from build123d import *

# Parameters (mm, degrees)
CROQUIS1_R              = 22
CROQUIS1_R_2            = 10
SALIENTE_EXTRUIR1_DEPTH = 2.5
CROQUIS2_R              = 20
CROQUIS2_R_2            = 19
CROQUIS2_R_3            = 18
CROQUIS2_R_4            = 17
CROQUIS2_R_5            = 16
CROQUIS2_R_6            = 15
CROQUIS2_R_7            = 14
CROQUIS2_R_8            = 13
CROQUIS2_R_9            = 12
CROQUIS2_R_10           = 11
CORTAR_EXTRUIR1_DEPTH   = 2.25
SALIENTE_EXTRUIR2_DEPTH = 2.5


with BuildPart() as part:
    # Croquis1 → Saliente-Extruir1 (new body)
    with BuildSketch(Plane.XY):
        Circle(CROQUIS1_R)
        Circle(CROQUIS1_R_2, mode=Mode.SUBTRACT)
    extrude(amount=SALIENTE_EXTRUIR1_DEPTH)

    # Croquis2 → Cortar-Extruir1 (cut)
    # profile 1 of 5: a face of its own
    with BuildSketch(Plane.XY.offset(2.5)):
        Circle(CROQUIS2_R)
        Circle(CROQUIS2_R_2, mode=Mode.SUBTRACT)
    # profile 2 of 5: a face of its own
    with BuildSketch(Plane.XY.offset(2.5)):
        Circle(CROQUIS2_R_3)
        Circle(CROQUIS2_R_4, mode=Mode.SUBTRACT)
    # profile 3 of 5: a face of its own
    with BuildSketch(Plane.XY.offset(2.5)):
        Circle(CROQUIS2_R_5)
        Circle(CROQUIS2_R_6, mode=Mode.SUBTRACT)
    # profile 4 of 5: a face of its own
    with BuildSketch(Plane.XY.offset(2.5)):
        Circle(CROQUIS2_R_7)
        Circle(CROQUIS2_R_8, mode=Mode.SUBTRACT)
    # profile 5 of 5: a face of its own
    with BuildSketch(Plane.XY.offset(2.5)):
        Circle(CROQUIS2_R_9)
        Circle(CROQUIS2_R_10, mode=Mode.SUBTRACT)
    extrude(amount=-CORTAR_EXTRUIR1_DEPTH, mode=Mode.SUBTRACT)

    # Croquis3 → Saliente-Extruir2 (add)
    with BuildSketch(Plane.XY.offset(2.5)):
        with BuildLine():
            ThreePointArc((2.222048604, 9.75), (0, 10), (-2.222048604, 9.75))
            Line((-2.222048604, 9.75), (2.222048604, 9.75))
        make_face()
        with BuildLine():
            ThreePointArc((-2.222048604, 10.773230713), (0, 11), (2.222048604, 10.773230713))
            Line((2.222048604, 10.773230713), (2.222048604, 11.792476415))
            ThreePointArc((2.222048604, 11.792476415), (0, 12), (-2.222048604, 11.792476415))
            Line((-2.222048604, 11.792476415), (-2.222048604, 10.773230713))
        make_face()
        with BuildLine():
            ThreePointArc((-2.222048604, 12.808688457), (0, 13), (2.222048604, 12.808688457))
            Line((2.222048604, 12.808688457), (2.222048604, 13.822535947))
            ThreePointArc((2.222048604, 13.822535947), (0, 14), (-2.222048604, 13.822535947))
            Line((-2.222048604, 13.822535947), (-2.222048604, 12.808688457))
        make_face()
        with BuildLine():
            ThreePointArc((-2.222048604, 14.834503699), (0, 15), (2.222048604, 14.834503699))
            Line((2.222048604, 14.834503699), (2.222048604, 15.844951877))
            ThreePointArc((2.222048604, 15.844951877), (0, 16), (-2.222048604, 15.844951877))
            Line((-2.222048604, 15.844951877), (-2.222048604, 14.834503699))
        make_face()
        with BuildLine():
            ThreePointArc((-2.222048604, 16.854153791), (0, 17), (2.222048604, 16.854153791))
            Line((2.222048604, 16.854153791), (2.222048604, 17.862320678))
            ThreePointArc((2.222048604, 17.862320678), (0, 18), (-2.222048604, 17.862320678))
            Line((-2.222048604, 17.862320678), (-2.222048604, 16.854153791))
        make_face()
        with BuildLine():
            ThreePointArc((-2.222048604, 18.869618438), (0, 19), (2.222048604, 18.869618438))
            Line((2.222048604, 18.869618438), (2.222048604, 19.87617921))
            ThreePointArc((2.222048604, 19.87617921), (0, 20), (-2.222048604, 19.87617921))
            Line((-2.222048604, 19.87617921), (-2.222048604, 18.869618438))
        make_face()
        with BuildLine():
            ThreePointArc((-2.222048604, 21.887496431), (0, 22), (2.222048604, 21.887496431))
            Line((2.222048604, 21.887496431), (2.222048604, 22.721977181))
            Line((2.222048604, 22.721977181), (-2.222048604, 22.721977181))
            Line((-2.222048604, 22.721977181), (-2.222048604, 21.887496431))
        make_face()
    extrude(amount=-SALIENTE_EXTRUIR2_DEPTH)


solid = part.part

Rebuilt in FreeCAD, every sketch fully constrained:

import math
import FreeCAD as App
import Part
import Sketcher

doc = App.newDocument("Part")
params = doc.addObject("Spreadsheet::Sheet", "Params")
for row, (alias, value) in enumerate([
    ("sketch1_diameter", "44 mm"),
    ("sketch1_diameter2", "20 mm"),
    ("pad1_length", "2.5 mm"),
    ("sketch2_diameter", "40 mm"),
    ("sketch2_diameter2", "38 mm"),
    ("sketch2_diameter3", "36 mm"),
    ("sketch2_diameter4", "34 mm"),
    ("sketch2_diameter5", "32 mm"),
    ("pocket1_length", "2.25 mm"),
    ("sketch3_radius", "10 mm"),
    ("sketch3_radius2", "11 mm"),
    ("sketch3_radius3", "12 mm"),
    ("sketch3_radius4", "13 mm"),
    ("sketch3_radius5", "14 mm"),
    ("pad2_length", "2.5 mm"),
], start=1):
    params.set(f"A{row}", alias)
    params.set(f"B{row}", "=" + value)
    params.setAlias(f"B{row}", alias)

body = doc.addObject("PartDesign::Body", "Body")

# Sketch on XY plane
sketch1 = body.newObject("Sketcher::SketchObject", "Sketch")
sketch1.AttachmentSupport = (doc.getObject("XY_Plane"), [""])
sketch1.MapMode = "FlatFace"
sketch1.addGeometry(Part.Circle(App.Vector(0, 0, 0), App.Vector(0, 0, 1), 22), False)
sketch1.addGeometry(Part.Circle(App.Vector(0, 0, 0), App.Vector(0, 0, 1), 10), False)
sketch1.addConstraint(Sketcher.Constraint("Coincident", 0, 3, -1, 1))
sketch1.addConstraint(Sketcher.Constraint("Coincident", 1, 3, -1, 1))
sketch1.addConstraint(Sketcher.Constraint("Diameter", 0, 44.0))
sketch1.addConstraint(Sketcher.Constraint("Diameter", 1, 20.0))
sketch1.setExpression("Constraints[2]", "Params.sketch1_diameter")
sketch1.setExpression("Constraints[3]", "Params.sketch1_diameter2")
pad1 = body.newObject("PartDesign::Pad", "Pad")
pad1.Profile = sketch1
pad1.setExpression("Length", "Params.pad1_length")

# Sketch on XY plane
sketch2 = body.newObject("Sketcher::SketchObject", "Sketch001")
sketch2.AttachmentSupport = (doc.getObject("XY_Plane"), [""])
sketch2.MapMode = "FlatFace"
sketch2.AttachmentOffset = App.Placement(App.Vector(0, 0, 2.5), App.Rotation())
sketch2.addGeometry(Part.Circle(App.Vector(0, 0, 0), App.Vector(0, 0, 1), 20), False)
sketch2.addGeometry(Part.Circle(App.Vector(0, 0, 0), App.Vector(0, 0, 1), 19), False)
sketch2.addGeometry(Part.Circle(App.Vector(0, 0, 0), App.Vector(0, 0, 1), 18), False)
sketch2.addGeometry(Part.Circle(App.Vector(0, 0, 0), App.Vector(0, 0, 1), 17), False)
sketch2.addGeometry(Part.Circle(App.Vector(0, 0, 0), App.Vector(0, 0, 1), 16), False)
sketch2.addGeometry(Part.Circle(App.Vector(0, 0, 0), App.Vector(0, 0, 1), 15), False)
sketch2.addGeometry(Part.Circle(App.Vector(0, 0, 0), App.Vector(0, 0, 1), 14), False)
sketch2.addGeometry(Part.Circle(App.Vector(0, 0, 0), App.Vector(0, 0, 1), 13), False)
sketch2.addGeometry(Part.Circle(App.Vector(0, 0, 0), App.Vector(0, 0, 1), 12), False)
sketch2.addGeometry(Part.Circle(App.Vector(0, 0, 0), App.Vector(0, 0, 1), 11), False)
sketch2.addConstraint(Sketcher.Constraint("Coincident", 0, 3, -1, 1))
sketch2.addConstraint(Sketcher.Constraint("Coincident", 1, 3, -1, 1))
sketch2.addConstraint(Sketcher.Constraint("Coincident", 2, 3, -1, 1))
sketch2.addConstraint(Sketcher.Constraint("Coincident", 3, 3, -1, 1))
sketch2.addConstraint(Sketcher.Constraint("Coincident", 4, 3, -1, 1))
sketch2.addConstraint(Sketcher.Constraint("Coincident", 5, 3, -1, 1))
sketch2.addConstraint(Sketcher.Constraint("Coincident", 6, 3, -1, 1))
sketch2.addConstraint(Sketcher.Constraint("Coincident", 7, 3, -1, 1))
sketch2.addConstraint(Sketcher.Constraint("Coincident", 8, 3, -1, 1))
sketch2.addConstraint(Sketcher.Constraint("Coincident", 9, 3, -1, 1))
sketch2.addConstraint(Sketcher.Constraint("Diameter", 0, 40.0))
sketch2.addConstraint(Sketcher.Constraint("Diameter", 1, 38.0))
sketch2.addConstraint(Sketcher.Constraint("Diameter", 2, 36.0))
sketch2.addConstraint(Sketcher.Constraint("Diameter", 3, 34.0))
sketch2.addConstraint(Sketcher.Constraint("Diameter", 4, 32.0))
sketch2.addConstraint(Sketcher.Constraint("Diameter", 5, 30.0))
sketch2.addConstraint(Sketcher.Constraint("Diameter", 6, 28.0))
sketch2.addConstraint(Sketcher.Constraint("Diameter", 7, 26.0))
sketch2.addConstraint(Sketcher.Constraint("Diameter", 8, 24.0))
sketch2.addConstraint(Sketcher.Constraint("Diameter", 9, 22.0))
sketch2.setExpression("Constraints[10]", "Params.sketch2_diameter")
sketch2.setExpression("Constraints[11]", "Params.sketch2_diameter2")
sketch2.setExpression("Constraints[12]", "Params.sketch2_diameter3")
sketch2.setExpression("Constraints[13]", "Params.sketch2_diameter4")
sketch2.setExpression("Constraints[14]", "Params.sketch2_diameter5")
pocket1 = body.newObject("PartDesign::Pocket", "Pocket")
pocket1.Profile = sketch2
pocket1.setExpression("Length", "Params.pocket1_length")

# Sketch on XY plane
sketch3 = body.newObject("Sketcher::SketchObject", "Sketch002")
sketch3.AttachmentSupport = (doc.getObject("XY_Plane"), [""])
sketch3.MapMode = "FlatFace"
sketch3.AttachmentOffset = App.Placement(App.Vector(0, 0, 2.5), App.Rotation())
sketch3.addGeometry(Part.ArcOfCircle(Part.Circle(App.Vector(0, 0, 0), App.Vector(0, 0, 1), 10), math.radians(77.161432), math.radians(102.838568)), False)
sketch3.addGeometry(Part.LineSegment(App.Vector(-2.222049, 9.75, 0), App.Vector(2.222049, 9.75, 0)), False)
sketch3.addGeometry(Part.ArcOfCircle(Part.Circle(App.Vector(0, 0, 0), App.Vector(0, 0, 1), 11), math.radians(78.345803), math.radians(101.654197)), False)
sketch3.addGeometry(Part.LineSegment(App.Vector(2.222049, 10.773231, 0), App.Vector(2.222049, 11.792476, 0)), False)
sketch3.addGeometry(Part.ArcOfCircle(Part.Circle(App.Vector(0, 0, 0), App.Vector(0, 0, 1), 12), math.radians(79.328914), math.radians(100.671086)), False)
sketch3.addGeometry(Part.LineSegment(App.Vector(-2.222049, 11.792476, 0), App.Vector(-2.222049, 10.773231, 0)), False)
sketch3.addGeometry(Part.ArcOfCircle(Part.Circle(App.Vector(0, 0, 0), App.Vector(0, 0, 1), 13), math.radians(80.15829), math.radians(99.84171)), False)
sketch3.addGeometry(Part.LineSegment(App.Vector(2.222049, 12.808688, 0), App.Vector(2.222049, 13.822536, 0)), False)
sketch3.addGeometry(Part.ArcOfCircle(Part.Circle(App.Vector(0, 0, 0), App.Vector(0, 0, 1), 14), math.radians(80.867522), math.radians(99.132478)), False)
sketch3.addGeometry(Part.LineSegment(App.Vector(-2.222049, 13.822536, 0), App.Vector(-2.222049, 12.808688, 0)), False)
sketch3.addGeometry(Part.ArcOfCircle(Part.Circle(App.Vector(0, 0, 0), App.Vector(0, 0, 1), 15), math.radians(81.481046), math.radians(98.518954)), False)
sketch3.addGeometry(Part.LineSegment(App.Vector(2.222049, 14.834504, 0), App.Vector(2.222049, 15.844952, 0)), False)
sketch3.addGeometry(Part.ArcOfCircle(Part.Circle(App.Vector(0, 0, 0), App.Vector(0, 0, 1), 16), math.radians(82.017072), math.radians(97.982928)), False)
sketch3.addGeometry(Part.LineSegment(App.Vector(-2.222049, 15.844952, 0), App.Vector(-2.222049, 14.834504, 0)), False)
sketch3.addGeometry(Part.ArcOfCircle(Part.Circle(App.Vector(0, 0, 0), App.Vector(0, 0, 1), 17), math.radians(82.48945), math.radians(97.51055)), False)
sketch3.addGeometry(Part.LineSegment(App.Vector(2.222049, 16.854154, 0), App.Vector(2.222049, 17.862321, 0)), False)
sketch3.addGeometry(Part.ArcOfCircle(Part.Circle(App.Vector(0, 0, 0), App.Vector(0, 0, 1), 18), math.radians(82.908911), math.radians(97.091089)), False)
sketch3.addGeometry(Part.LineSegment(App.Vector(-2.222049, 17.862321, 0), App.Vector(-2.222049, 16.854154, 0)), False)
sketch3.addGeometry(Part.ArcOfCircle(Part.Circle(App.Vector(0, 0, 0), App.Vector(0, 0, 1), 19), math.radians(83.283893), math.radians(96.716107)), False)
sketch3.addGeometry(Part.LineSegment(App.Vector(2.222049, 18.869618, 0), App.Vector(2.222049, 19.876179, 0)), False)
sketch3.addGeometry(Part.ArcOfCircle(Part.Circle(App.Vector(0, 0, 0), App.Vector(0, 0, 1), 20), math.radians(83.62113), math.radians(96.37887)), False)
sketch3.addGeometry(Part.LineSegment(App.Vector(-2.222049, 19.876179, 0), App.Vector(-2.222049, 18.869618, 0)), False)
sketch3.addGeometry(Part.ArcOfCircle(Part.Circle(App.Vector(0, 0, 0), App.Vector(0, 0, 1), 22), math.radians(84.203115), math.radians(95.796885)), False)
sketch3.addGeometry(Part.LineSegment(App.Vector(2.222049, 21.887496, 0), App.Vector(2.222049, 22.721977, 0)), False)
sketch3.addGeometry(Part.LineSegment(App.Vector(2.222049, 22.721977, 0), App.Vector(-2.222049, 22.721977, 0)), False)
sketch3.addGeometry(Part.LineSegment(App.Vector(-2.222049, 22.721977, 0), App.Vector(-2.222049, 21.887496, 0)), False)
sketch3.addConstraint(Sketcher.Constraint("Coincident", 0, 1, 1, 2))
sketch3.addConstraint(Sketcher.Constraint("Coincident", 1, 1, 0, 2))
sketch3.addConstraint(Sketcher.Constraint("Coincident", 2, 1, 3, 1))
sketch3.addConstraint(Sketcher.Constraint("Coincident", 3, 2, 4, 1))
sketch3.addConstraint(Sketcher.Constraint("Coincident", 4, 2, 5, 1))
sketch3.addConstraint(Sketcher.Constraint("Coincident", 5, 2, 2, 2))
sketch3.addConstraint(Sketcher.Constraint("Coincident", 6, 1, 7, 1))
sketch3.addConstraint(Sketcher.Constraint("Coincident", 7, 2, 8, 1))
sketch3.addConstraint(Sketcher.Constraint("Coincident", 8, 2, 9, 1))
sketch3.addConstraint(Sketcher.Constraint("Coincident", 9, 2, 6, 2))
sketch3.addConstraint(Sketcher.Constraint("Coincident", 10, 1, 11, 1))
sketch3.addConstraint(Sketcher.Constraint("Coincident", 11, 2, 12, 1))
sketch3.addConstraint(Sketcher.Constraint("Coincident", 12, 2, 13, 1))
sketch3.addConstraint(Sketcher.Constraint("Coincident", 13, 2, 10, 2))
sketch3.addConstraint(Sketcher.Constraint("Coincident", 14, 1, 15, 1))
sketch3.addConstraint(Sketcher.Constraint("Coincident", 15, 2, 16, 1))
sketch3.addConstraint(Sketcher.Constraint("Coincident", 16, 2, 17, 1))
sketch3.addConstraint(Sketcher.Constraint("Coincident", 17, 2, 14, 2))
sketch3.addConstraint(Sketcher.Constraint("Coincident", 18, 1, 19, 1))
sketch3.addConstraint(Sketcher.Constraint("Coincident", 19, 2, 20, 1))
sketch3.addConstraint(Sketcher.Constraint("Coincident", 20, 2, 21, 1))
sketch3.addConstraint(Sketcher.Constraint("Coincident", 21, 2, 18, 2))
sketch3.addConstraint(Sketcher.Constraint("Coincident", 22, 1, 23, 1))
sketch3.addConstraint(Sketcher.Constraint("Coincident", 23, 2, 24, 1))
sketch3.addConstraint(Sketcher.Constraint("Coincident", 24, 2, 25, 1))
sketch3.addConstraint(Sketcher.Constraint("Coincident", 25, 2, 22, 2))
sketch3.addConstraint(Sketcher.Constraint("Horizontal", 1))
sketch3.addConstraint(Sketcher.Constraint("Vertical", 3))
sketch3.addConstraint(Sketcher.Constraint("Vertical", 5))
sketch3.addConstraint(Sketcher.Constraint("Vertical", 7))
sketch3.addConstraint(Sketcher.Constraint("Vertical", 9))
sketch3.addConstraint(Sketcher.Constraint("Vertical", 11))
sketch3.addConstraint(Sketcher.Constraint("Vertical", 13))
sketch3.addConstraint(Sketcher.Constraint("Vertical", 15))
sketch3.addConstraint(Sketcher.Constraint("Vertical", 17))
sketch3.addConstraint(Sketcher.Constraint("Vertical", 19))
sketch3.addConstraint(Sketcher.Constraint("Vertical", 21))
sketch3.addConstraint(Sketcher.Constraint("Vertical", 23))
sketch3.addConstraint(Sketcher.Constraint("Horizontal", 24))
sketch3.addConstraint(Sketcher.Constraint("Vertical", 25))
sketch3.addConstraint(Sketcher.Constraint("Coincident", 0, 3, -1, 1))
sketch3.addConstraint(Sketcher.Constraint("Coincident", 2, 3, -1, 1))
sketch3.addConstraint(Sketcher.Constraint("Coincident", 4, 3, -1, 1))
sketch3.addConstraint(Sketcher.Constraint("Coincident", 6, 3, -1, 1))
sketch3.addConstraint(Sketcher.Constraint("Coincident", 8, 3, -1, 1))
sketch3.addConstraint(Sketcher.Constraint("Coincident", 10, 3, -1, 1))
sketch3.addConstraint(Sketcher.Constraint("Coincident", 12, 3, -1, 1))
sketch3.addConstraint(Sketcher.Constraint("Coincident", 14, 3, -1, 1))
sketch3.addConstraint(Sketcher.Constraint("Coincident", 16, 3, -1, 1))
sketch3.addConstraint(Sketcher.Constraint("Coincident", 18, 3, -1, 1))
sketch3.addConstraint(Sketcher.Constraint("Coincident", 20, 3, -1, 1))
sketch3.addConstraint(Sketcher.Constraint("Coincident", 22, 3, -1, 1))
sketch3.addConstraint(Sketcher.Constraint("Horizontal", 3, 2, 4, 2))
sketch3.addConstraint(Sketcher.Constraint("Horizontal", 7, 2, 8, 2))
sketch3.addConstraint(Sketcher.Constraint("Horizontal", 11, 2, 12, 2))
sketch3.addConstraint(Sketcher.Constraint("Horizontal", 15, 2, 16, 2))
sketch3.addConstraint(Sketcher.Constraint("Horizontal", 19, 2, 20, 2))
sketch3.addConstraint(Sketcher.Constraint("Horizontal", 22, 1, 25, 2))
sketch3.addConstraint(Sketcher.Constraint("Vertical", 0, 1, 2, 1))
sketch3.addConstraint(Sketcher.Constraint("Vertical", 3, 2, 6, 1))
sketch3.addConstraint(Sketcher.Constraint("Vertical", 7, 2, 10, 1))
sketch3.addConstraint(Sketcher.Constraint("Vertical", 11, 2, 14, 1))
sketch3.addConstraint(Sketcher.Constraint("Vertical", 15, 2, 18, 1))
sketch3.addConstraint(Sketcher.Constraint("Vertical", 19, 2, 22, 1))
sketch3.addConstraint(Sketcher.Constraint("Radius", 0, 10.0))
sketch3.addConstraint(Sketcher.Constraint("Radius", 2, 11.0))
sketch3.addConstraint(Sketcher.Constraint("Radius", 4, 12.0))
sketch3.addConstraint(Sketcher.Constraint("Radius", 6, 13.0))
sketch3.addConstraint(Sketcher.Constraint("Radius", 8, 14.0))
sketch3.addConstraint(Sketcher.Constraint("Radius", 10, 15.0))
sketch3.addConstraint(Sketcher.Constraint("Radius", 12, 16.0))
sketch3.addConstraint(Sketcher.Constraint("Radius", 14, 17.0))
sketch3.addConstraint(Sketcher.Constraint("Radius", 16, 18.0))
sketch3.addConstraint(Sketcher.Constraint("Radius", 18, 19.0))
sketch3.addConstraint(Sketcher.Constraint("Radius", 20, 20.0))
sketch3.addConstraint(Sketcher.Constraint("Radius", 22, 22.0))
sketch3.addConstraint(Sketcher.Constraint("DistanceY", -1, 1, 0, 1, 9.75))
sketch3.addConstraint(Sketcher.Constraint("DistanceY", 23, 1, 23, 2, 0.834481))
sketch3.setExpression("Constraints[64]", "Params.sketch3_radius")
sketch3.setExpression("Constraints[65]", "Params.sketch3_radius2")
sketch3.setExpression("Constraints[66]", "Params.sketch3_radius3")
sketch3.setExpression("Constraints[67]", "Params.sketch3_radius4")
sketch3.setExpression("Constraints[68]", "Params.sketch3_radius5")
pad2 = body.newObject("PartDesign::Pad", "Pad001")
pad2.Profile = sketch3
pad2.setExpression("Length", "Params.pad2_length")
pad2.Reversed = True

doc.recompute()
